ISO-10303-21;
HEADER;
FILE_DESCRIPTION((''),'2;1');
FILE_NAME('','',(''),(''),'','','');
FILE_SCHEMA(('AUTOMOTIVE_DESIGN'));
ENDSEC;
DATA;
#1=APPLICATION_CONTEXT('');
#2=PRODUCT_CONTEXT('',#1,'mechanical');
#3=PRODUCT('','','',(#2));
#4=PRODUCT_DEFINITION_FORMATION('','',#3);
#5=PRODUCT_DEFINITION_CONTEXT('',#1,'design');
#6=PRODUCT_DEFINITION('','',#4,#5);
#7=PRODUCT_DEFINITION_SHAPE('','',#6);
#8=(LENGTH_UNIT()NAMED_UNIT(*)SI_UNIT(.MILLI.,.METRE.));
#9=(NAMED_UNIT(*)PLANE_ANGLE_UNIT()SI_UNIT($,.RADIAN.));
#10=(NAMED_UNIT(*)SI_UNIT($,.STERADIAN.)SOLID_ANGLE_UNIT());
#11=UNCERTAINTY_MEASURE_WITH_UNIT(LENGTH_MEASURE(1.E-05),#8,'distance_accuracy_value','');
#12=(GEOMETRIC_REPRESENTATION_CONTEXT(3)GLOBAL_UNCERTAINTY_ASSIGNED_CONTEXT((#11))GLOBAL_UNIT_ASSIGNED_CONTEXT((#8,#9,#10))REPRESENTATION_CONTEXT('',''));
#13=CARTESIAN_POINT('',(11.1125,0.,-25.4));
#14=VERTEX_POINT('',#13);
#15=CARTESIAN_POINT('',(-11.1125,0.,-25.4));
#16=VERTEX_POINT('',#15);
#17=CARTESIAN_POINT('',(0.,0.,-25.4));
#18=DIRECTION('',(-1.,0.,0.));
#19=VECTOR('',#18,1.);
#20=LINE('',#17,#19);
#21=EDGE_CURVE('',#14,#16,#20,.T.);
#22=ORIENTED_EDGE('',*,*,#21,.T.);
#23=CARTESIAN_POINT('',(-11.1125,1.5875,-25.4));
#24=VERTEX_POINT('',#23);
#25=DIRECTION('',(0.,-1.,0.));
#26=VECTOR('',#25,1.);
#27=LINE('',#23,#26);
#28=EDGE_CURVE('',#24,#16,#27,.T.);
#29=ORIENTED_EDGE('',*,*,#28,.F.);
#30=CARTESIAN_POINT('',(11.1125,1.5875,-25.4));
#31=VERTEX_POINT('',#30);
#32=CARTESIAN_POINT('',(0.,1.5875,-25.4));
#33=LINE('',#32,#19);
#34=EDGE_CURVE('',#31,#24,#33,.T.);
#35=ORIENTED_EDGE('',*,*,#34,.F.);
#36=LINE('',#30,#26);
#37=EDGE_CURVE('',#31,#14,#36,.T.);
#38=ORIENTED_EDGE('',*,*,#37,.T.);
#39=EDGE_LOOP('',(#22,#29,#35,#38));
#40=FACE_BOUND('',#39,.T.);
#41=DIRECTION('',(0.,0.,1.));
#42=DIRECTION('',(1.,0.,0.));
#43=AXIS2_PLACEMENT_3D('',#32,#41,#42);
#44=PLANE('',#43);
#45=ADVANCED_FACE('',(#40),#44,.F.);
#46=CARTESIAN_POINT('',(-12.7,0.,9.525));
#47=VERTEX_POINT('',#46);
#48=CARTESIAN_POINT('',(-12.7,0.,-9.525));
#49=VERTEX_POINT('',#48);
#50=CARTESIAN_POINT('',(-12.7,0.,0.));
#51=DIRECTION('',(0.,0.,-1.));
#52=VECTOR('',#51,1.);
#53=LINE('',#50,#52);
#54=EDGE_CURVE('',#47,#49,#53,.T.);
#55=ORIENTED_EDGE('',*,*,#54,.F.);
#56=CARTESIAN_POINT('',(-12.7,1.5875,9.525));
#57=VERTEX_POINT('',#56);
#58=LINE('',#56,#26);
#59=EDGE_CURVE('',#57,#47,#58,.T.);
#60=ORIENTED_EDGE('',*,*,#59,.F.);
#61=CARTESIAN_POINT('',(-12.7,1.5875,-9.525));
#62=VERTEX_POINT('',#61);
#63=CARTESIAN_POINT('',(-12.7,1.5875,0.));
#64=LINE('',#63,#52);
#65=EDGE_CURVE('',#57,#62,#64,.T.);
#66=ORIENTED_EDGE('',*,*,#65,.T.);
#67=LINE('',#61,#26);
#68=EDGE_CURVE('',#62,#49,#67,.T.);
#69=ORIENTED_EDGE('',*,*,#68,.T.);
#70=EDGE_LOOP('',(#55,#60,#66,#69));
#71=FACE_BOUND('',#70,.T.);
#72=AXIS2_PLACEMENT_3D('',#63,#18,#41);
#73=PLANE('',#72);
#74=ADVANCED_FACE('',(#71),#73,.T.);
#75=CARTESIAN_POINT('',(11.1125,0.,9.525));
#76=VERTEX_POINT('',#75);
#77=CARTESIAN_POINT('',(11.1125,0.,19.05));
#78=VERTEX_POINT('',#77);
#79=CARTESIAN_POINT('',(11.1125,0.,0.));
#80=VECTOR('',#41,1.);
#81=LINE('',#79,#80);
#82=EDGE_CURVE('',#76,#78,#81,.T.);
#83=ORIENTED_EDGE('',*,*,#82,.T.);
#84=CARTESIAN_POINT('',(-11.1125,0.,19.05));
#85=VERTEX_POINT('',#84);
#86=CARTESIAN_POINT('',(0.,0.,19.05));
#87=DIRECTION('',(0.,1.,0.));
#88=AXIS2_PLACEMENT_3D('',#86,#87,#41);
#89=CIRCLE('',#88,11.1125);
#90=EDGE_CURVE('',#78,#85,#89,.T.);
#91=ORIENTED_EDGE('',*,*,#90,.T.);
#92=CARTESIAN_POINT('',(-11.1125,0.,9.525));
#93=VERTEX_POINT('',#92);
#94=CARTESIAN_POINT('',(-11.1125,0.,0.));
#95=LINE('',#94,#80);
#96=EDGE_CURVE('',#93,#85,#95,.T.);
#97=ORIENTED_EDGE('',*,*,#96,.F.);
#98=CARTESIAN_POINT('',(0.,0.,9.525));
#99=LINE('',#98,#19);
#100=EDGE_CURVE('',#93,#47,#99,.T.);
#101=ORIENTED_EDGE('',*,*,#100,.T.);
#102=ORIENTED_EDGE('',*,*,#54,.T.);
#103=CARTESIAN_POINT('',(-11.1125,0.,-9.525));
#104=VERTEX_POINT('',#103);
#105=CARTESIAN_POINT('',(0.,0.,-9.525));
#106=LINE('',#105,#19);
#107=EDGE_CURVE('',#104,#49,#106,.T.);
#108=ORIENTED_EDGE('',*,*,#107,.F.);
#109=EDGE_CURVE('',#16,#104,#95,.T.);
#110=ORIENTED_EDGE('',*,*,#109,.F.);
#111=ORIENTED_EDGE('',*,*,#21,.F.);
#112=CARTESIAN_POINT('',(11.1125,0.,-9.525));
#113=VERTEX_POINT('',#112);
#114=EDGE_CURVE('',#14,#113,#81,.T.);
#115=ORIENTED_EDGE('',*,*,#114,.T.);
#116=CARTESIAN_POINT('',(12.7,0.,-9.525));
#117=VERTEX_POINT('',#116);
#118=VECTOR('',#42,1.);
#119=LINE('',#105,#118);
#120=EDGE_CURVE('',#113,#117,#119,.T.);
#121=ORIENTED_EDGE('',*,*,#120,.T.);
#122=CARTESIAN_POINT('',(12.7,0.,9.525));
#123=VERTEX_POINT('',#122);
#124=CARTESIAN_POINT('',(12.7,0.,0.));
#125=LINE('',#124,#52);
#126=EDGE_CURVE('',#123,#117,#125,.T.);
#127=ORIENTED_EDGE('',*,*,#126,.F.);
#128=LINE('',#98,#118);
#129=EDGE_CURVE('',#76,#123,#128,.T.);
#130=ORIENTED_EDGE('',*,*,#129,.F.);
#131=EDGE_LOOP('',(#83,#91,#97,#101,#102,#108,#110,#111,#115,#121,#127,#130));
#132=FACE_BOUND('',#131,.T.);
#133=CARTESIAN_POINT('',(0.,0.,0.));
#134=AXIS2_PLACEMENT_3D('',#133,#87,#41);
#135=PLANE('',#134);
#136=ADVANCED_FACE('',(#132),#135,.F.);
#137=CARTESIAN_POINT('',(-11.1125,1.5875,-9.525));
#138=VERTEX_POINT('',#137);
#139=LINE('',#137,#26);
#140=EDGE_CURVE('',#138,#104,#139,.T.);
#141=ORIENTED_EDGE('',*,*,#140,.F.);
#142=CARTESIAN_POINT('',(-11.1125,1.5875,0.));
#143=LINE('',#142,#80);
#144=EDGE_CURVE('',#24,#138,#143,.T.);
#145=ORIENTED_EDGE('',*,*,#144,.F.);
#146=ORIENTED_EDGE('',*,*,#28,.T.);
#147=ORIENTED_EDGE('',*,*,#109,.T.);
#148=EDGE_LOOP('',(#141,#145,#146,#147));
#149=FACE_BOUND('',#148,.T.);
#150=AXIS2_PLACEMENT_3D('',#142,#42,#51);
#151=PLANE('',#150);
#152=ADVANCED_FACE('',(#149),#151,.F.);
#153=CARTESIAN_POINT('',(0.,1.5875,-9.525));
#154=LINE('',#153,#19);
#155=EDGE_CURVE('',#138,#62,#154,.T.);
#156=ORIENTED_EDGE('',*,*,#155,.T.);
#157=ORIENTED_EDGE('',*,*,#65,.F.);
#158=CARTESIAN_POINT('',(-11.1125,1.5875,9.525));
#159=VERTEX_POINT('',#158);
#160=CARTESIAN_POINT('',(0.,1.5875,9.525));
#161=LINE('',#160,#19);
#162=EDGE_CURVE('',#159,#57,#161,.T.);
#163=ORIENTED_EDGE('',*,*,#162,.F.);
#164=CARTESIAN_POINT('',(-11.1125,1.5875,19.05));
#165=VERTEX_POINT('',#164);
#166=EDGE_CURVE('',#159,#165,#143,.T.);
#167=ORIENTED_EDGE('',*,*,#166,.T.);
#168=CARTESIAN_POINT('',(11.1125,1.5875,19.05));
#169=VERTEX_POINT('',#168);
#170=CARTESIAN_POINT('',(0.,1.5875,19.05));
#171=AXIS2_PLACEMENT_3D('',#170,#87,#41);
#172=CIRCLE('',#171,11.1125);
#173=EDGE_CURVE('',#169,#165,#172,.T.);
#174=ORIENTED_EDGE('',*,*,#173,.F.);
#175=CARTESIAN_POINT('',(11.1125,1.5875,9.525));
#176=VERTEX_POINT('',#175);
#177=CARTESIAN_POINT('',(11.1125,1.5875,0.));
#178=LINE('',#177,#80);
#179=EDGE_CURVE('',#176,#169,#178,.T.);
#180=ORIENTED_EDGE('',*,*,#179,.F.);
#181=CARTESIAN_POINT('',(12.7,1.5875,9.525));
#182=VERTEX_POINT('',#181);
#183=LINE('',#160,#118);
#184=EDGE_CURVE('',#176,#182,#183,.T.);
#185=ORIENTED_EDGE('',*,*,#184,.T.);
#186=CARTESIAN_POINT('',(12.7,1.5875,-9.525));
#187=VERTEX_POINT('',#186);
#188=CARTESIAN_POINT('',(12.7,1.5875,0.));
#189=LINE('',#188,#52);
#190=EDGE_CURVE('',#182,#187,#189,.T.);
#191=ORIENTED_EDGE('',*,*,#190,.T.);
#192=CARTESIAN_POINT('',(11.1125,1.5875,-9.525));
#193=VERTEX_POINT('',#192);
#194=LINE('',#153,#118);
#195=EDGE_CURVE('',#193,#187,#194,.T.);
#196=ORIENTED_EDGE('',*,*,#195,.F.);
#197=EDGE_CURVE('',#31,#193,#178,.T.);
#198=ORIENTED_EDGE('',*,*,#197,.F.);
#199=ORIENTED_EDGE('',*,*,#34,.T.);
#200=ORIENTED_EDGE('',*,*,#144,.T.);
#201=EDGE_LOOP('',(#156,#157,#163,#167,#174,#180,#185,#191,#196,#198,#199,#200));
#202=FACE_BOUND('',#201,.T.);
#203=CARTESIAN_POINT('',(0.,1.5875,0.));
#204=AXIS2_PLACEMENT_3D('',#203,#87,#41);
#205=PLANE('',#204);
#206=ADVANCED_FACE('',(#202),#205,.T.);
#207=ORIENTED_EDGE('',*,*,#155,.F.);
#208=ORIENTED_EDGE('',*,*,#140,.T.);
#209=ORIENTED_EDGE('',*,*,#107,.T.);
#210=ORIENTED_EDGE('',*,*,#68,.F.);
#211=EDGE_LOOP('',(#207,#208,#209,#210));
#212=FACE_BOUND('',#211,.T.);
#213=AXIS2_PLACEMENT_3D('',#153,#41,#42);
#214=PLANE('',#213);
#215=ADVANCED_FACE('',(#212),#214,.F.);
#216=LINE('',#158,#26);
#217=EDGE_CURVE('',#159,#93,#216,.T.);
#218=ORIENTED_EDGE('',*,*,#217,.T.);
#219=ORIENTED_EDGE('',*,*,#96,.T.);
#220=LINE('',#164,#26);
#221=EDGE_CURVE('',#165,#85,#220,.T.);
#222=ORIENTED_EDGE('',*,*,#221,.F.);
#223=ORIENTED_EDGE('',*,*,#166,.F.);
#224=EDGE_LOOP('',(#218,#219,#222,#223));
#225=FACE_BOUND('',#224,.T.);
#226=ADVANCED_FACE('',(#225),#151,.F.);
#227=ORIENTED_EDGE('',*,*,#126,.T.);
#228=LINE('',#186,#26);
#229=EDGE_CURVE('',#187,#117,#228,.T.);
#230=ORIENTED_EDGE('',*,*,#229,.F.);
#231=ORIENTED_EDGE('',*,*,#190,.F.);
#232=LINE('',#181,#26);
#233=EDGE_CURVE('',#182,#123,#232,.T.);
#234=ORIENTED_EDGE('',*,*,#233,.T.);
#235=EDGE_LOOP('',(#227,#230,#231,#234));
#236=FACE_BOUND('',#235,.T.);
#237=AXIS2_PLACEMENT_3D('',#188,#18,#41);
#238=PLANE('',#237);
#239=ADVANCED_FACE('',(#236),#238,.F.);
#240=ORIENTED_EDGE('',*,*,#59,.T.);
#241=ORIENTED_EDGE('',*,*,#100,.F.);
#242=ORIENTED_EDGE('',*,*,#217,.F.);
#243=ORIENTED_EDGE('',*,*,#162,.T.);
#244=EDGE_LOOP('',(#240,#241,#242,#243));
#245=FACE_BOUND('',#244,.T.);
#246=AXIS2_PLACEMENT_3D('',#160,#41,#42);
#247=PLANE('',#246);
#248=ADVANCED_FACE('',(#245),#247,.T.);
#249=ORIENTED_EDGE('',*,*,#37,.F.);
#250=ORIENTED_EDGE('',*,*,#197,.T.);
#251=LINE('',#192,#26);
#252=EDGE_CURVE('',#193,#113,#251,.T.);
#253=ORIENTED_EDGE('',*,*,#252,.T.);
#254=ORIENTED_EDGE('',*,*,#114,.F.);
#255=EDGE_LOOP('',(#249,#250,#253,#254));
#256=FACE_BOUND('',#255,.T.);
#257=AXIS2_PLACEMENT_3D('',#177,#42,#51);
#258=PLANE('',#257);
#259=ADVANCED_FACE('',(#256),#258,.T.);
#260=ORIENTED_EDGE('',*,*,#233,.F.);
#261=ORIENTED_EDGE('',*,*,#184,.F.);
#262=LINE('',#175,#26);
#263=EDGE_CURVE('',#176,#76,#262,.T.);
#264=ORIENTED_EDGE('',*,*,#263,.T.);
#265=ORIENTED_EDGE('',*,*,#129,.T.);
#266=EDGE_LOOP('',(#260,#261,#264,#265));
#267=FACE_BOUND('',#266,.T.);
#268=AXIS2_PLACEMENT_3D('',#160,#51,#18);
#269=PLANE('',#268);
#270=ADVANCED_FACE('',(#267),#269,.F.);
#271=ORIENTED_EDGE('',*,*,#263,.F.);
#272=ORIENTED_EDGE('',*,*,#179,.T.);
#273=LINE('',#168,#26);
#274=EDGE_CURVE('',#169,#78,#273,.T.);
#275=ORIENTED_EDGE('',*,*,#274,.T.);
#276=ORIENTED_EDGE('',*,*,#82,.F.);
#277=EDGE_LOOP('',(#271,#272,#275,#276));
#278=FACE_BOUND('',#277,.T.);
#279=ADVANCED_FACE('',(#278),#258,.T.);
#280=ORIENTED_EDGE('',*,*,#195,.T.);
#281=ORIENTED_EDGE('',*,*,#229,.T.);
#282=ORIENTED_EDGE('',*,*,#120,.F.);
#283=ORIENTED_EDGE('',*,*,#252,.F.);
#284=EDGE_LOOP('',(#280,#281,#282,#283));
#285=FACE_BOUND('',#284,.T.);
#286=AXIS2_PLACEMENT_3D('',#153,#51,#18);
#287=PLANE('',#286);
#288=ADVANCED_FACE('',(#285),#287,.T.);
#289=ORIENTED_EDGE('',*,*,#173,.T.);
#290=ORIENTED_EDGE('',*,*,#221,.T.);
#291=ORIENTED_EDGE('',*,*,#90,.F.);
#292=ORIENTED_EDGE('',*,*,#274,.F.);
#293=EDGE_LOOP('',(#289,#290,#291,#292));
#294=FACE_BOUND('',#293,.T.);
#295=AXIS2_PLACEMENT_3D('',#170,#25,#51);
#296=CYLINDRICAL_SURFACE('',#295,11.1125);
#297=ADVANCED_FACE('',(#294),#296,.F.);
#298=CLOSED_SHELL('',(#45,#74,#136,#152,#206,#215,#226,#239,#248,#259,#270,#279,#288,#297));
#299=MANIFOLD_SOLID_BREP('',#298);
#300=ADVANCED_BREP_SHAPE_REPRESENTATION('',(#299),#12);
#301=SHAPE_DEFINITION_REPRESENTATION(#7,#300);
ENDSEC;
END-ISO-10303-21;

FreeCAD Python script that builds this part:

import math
import FreeCAD as App
import Part
import Sketcher
from FreeCAD import Vector
Q = App.Units.Quantity

doc = App.newDocument("Part")
body = doc.addObject("PartDesign::Body", "Body")

# Sketch on XZ plane
sketch1 = body.newObject("Sketcher::SketchObject", "Sketch")
sketch1.AttachmentSupport = (doc.getObject("XZ_Plane"), [""])
sketch1.MapMode = "FlatFace"
sketch1.addGeometry([
    Part.LineSegment(Vector(11.1, -25.4, 0), Vector(-11.1, -25.4, 0)),  # 0
    Part.LineSegment(Vector(-11.1, -25.4, 0), Vector(-11.1, -9.5, 0)),  # 1
    Part.LineSegment(Vector(-11.1, -9.5, 0), Vector(-12.7, -9.5, 0)),  # 2
    Part.LineSegment(Vector(-12.7, -9.5, 0), Vector(-12.7, 9.5, 0)),  # 3
    Part.LineSegment(Vector(-12.7, 9.5, 0), Vector(-11.1, 9.5, 0)),  # 4
    Part.LineSegment(Vector(-11.1, 9.5, 0), Vector(-11.1, 19.1, 0)),  # 5
    Part.ArcOfCircle(Part.Circle(Vector(0, 19.1, 0), Vector(0, 0, 1), 11.1), math.radians(180), math.radians(360)),  # 6
    Part.LineSegment(Vector(11.1, 19.1, 0), Vector(11.1, 9.5, 0)),  # 7
    Part.LineSegment(Vector(11.1, 9.5, 0), Vector(12.7, 9.5, 0)),  # 8
    Part.LineSegment(Vector(12.7, 9.5, 0), Vector(12.7, -9.5, 0)),  # 9
    Part.LineSegment(Vector(12.7, -9.5, 0), Vector(11.1, -9.5, 0)),  # 10
    Part.LineSegment(Vector(11.1, -9.5, 0), Vector(11.1, -25.4, 0)),  # 11
], False)
sketch1.addConstraint([
    Sketcher.Constraint("Coincident", 0, 2, 1, 1),
    Sketcher.Constraint("Coincident", 1, 2, 2, 1),
    Sketcher.Constraint("Coincident", 2, 2, 3, 1),
    Sketcher.Constraint("Coincident", 3, 2, 4, 1),
    Sketcher.Constraint("Coincident", 4, 2, 5, 1),
    Sketcher.Constraint("Tangent", 5, 2, 6, 1),
    Sketcher.Constraint("Tangent", 6, 2, 7, 1),
    Sketcher.Constraint("Coincident", 7, 2, 8, 1),
    Sketcher.Constraint("Coincident", 8, 2, 9, 1),
    Sketcher.Constraint("Coincident", 9, 2, 10, 1),
    Sketcher.Constraint("Coincident", 10, 2, 11, 1),
    Sketcher.Constraint("Coincident", 11, 2, 0, 1),
    Sketcher.Constraint("Horizontal", 0),
    Sketcher.Constraint("Vertical", 1),
    Sketcher.Constraint("Horizontal", 2),
    Sketcher.Constraint("Vertical", 3),
    Sketcher.Constraint("Horizontal", 4),
    Sketcher.Constraint("Vertical", 5),
    Sketcher.Constraint("Vertical", 7),
    Sketcher.Constraint("Horizontal", 8),
    Sketcher.Constraint("Vertical", 9),
    Sketcher.Constraint("Horizontal", 10),
    Sketcher.Constraint("Vertical", 11),
    Sketcher.Constraint("Symmetric", 1, 2, 7, 2, -1, 1),
    Sketcher.Constraint("Symmetric", 3, 2, 9, 2, -1, 1),
    Sketcher.Constraint("Symmetric", 4, 2, 7, 2, -2),
    Sketcher.Constraint("Vertical", 7, 2, 10, 2),
    Sketcher.Constraint("DistanceY", 0, 2, -1, 1, Q("1 in")),
    Sketcher.Constraint("Radius", 6, Q("0.4375 in")),
    Sketcher.Constraint("DistanceX", 3, 2, 8, 2, Q("1 in")),
    Sketcher.Constraint("DistanceY", 3, 1, 3, 2, Q("0.75 in")),
    Sketcher.Constraint("DistanceY", 5, 1, 5, 2, Q("0.375 in")),
])
pad1 = body.newObject("PartDesign::Pad", "Pad")
pad1.Profile = sketch1
pad1.Length = Q("0.0625 in")
pad1.Reversed = True

doc.recompute()
